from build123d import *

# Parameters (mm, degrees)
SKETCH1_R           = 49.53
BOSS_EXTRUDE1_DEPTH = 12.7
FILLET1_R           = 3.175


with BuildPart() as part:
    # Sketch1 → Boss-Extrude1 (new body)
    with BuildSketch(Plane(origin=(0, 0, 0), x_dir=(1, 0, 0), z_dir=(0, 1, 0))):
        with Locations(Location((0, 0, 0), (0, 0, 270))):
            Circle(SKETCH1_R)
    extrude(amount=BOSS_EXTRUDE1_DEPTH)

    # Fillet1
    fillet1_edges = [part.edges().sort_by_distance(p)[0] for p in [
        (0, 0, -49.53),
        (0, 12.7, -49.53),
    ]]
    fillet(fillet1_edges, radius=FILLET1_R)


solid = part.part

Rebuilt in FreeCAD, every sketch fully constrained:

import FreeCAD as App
import Part
import Sketcher
from FreeCAD import Vector
Q = App.Units.Quantity


def edges_at(feature, points):
    """Names of the edges that pass closest to the given points."""
    edges = feature.Shape.Edges
    near = lambda p: min(range(len(edges)), key=lambda i: edges[i].distToShape(Part.Vertex(*p))[0])
    return sorted({f"Edge{near(p) + 1}" for p in points})

doc = App.newDocument("Part")
body = doc.addObject("PartDesign::Body", "Body")

# Sketch on XZ plane
sketch1 = body.newObject("Sketcher::SketchObject", "Sketch")
sketch1.AttachmentSupport = (doc.getObject("XZ_Plane"), [""])
sketch1.MapMode = "FlatFace"
sketch1.addGeometry(Part.Circle(Vector(0, 0, 0), Vector(0, 0, 1), 49.53), False)
sketch1.addConstraint([
    Sketcher.Constraint("Coincident", 0, 3, -1, 1),
    Sketcher.Constraint("Diameter", 0, Q("3.9 in")),
])
pad1 = body.newObject("PartDesign::Pad", "Pad")
pad1.Profile = sketch1
pad1.Length = Q("0.5 in")
pad1.Reversed = True
doc.recompute()

fillet = body.newObject("PartDesign::Fillet", "Fillet")
fillet.Base = (pad1, edges_at(pad1, [(0, 0, -49.53), (0, 12.7, -49.53)]))
fillet.Radius = Q("0.125 in")

doc.recompute()
